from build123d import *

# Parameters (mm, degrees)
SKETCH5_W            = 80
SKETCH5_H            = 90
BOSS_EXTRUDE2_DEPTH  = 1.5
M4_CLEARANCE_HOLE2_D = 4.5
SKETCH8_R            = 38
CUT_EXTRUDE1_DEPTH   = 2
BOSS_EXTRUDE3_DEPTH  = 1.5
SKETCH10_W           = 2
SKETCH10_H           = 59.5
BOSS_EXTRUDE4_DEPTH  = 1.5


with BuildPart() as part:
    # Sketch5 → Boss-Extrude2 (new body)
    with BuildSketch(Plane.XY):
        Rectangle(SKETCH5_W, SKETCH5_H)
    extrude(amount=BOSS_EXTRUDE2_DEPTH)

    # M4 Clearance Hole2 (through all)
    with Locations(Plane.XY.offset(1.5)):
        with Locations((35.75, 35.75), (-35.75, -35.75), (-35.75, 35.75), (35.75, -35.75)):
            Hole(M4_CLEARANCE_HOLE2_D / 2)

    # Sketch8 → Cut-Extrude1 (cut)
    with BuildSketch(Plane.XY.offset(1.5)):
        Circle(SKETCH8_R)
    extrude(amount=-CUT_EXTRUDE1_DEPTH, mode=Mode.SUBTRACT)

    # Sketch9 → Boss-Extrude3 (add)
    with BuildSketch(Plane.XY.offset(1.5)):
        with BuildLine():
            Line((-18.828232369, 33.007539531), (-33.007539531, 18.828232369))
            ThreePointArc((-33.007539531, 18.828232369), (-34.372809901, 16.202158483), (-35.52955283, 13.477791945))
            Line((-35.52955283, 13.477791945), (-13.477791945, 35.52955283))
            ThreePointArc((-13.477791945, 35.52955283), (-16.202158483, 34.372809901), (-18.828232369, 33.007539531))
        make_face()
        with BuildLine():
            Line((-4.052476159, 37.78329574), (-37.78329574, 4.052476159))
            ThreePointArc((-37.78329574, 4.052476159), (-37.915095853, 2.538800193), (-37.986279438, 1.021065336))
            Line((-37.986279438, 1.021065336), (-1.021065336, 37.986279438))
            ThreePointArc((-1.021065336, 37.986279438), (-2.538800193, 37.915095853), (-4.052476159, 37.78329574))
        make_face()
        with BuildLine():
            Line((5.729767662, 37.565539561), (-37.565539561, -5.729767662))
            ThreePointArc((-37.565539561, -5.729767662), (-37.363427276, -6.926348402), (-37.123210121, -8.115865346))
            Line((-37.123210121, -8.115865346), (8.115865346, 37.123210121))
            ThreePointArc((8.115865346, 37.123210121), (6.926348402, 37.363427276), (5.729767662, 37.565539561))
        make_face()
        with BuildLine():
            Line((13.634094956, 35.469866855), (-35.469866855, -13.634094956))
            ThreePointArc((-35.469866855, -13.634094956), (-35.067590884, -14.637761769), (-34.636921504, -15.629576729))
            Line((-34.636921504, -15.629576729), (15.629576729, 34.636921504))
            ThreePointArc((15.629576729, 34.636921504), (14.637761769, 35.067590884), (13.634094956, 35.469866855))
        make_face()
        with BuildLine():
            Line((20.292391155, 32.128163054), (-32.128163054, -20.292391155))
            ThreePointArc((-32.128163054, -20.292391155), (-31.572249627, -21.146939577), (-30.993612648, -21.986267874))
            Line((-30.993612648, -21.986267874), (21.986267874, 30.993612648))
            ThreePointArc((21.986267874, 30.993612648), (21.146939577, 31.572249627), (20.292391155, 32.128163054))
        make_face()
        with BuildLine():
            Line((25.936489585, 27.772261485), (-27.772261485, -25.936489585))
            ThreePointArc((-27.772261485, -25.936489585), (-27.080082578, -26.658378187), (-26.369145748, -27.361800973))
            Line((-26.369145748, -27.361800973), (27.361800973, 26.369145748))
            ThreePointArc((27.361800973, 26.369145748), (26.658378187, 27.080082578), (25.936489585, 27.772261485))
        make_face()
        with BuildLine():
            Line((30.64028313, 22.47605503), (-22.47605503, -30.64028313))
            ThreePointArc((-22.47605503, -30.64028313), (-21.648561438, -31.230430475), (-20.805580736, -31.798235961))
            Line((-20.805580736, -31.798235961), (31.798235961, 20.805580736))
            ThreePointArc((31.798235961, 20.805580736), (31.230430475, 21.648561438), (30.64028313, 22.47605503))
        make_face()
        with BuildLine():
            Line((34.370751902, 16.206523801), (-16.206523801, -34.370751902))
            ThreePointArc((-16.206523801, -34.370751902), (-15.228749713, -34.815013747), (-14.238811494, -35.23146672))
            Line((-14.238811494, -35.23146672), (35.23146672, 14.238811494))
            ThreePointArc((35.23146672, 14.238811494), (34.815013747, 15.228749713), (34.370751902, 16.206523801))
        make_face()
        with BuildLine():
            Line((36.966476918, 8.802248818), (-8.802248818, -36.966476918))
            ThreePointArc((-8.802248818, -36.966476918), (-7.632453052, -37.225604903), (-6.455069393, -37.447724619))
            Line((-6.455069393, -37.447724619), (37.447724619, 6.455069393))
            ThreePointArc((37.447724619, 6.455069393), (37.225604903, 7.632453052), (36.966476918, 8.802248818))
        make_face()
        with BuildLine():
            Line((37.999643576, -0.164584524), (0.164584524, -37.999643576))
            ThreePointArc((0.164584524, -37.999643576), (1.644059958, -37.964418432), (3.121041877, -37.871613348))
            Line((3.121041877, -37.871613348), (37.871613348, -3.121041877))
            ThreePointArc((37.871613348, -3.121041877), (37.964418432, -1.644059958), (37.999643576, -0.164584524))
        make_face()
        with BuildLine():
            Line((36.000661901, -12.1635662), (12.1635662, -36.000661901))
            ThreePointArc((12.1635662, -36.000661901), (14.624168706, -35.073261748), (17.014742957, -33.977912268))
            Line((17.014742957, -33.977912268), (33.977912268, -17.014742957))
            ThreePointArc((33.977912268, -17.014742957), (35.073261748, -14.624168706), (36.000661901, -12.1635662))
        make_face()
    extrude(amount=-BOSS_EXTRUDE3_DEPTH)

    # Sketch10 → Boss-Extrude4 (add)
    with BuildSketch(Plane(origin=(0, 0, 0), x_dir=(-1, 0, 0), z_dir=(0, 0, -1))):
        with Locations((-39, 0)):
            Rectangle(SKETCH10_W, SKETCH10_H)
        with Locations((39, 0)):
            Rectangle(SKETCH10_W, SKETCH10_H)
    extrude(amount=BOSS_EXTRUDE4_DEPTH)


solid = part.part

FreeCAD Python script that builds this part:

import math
import FreeCAD as App
import Part
import Sketcher
from FreeCAD import Vector
Q = App.Units.Quantity


def add_polygon(sketch, points):
    """Adds a closed chain of lines whose ends are joined by coincident constraints."""
    first, n = sketch.GeometryCount, len(points)
    for a, b in zip(points, points[1:] + points[:1]):
        sketch.addGeometry(Part.LineSegment(App.Vector(*a, 0), App.Vector(*b, 0)), False)
    for i in range(n):
        sketch.addConstraint(Sketcher.Constraint("Coincident", first + i, 2, first + (i + 1) % n, 1))

doc = App.newDocument("Part")
params = doc.addObject("Spreadsheet::Sheet", "Params")
for row, (alias, value) in enumerate([
    ("sketch1_width", "80 mm"),
    ("sketch1_height", "90 mm"),
    ("pad1_length", "1.5 mm"),
    ("sketch2_diameter", "4.5 mm"),
    ("hole_diameter", "4.5 mm"),
    ("sketch3_diameter", "76 mm"),
    ("pocket1_length", "2 mm"),
    ("sketch4_radius", "38 mm"),
    ("pad2_length", "1.5 mm"),
    ("sketch5_width", "2 mm"),
    ("sketch5_height", "59.5 mm"),
    ("pad3_length", "1.5 mm"),
], start=1):
    params.set(f"A{row}", alias)
    params.set(f"B{row}", "=" + value)
    params.setAlias(f"B{row}", alias)

body = doc.addObject("PartDesign::Body", "Body")

# Sketch on XY plane
sketch1 = body.newObject("Sketcher::SketchObject", "Sketch")
sketch1.AttachmentSupport = (doc.getObject("XY_Plane"), [""])
sketch1.MapMode = "FlatFace"
add_polygon(sketch1, [(-40, 45), (-40, -45), (40, -45), (40, 45)])  # lines 0-3
sketch1.addConstraint([
    Sketcher.Constraint("Vertical", 0),
    Sketcher.Constraint("Horizontal", 1),
    Sketcher.Constraint("Vertical", 2),
    Sketcher.Constraint("Horizontal", 3),
    Sketcher.Constraint("Symmetric", 0, 2, 2, 2, -1, 1),
    Sketcher.Constraint("DistanceX", 1, 1, 1, 2, 80.0),
    Sketcher.Constraint("DistanceY", 0, 2, 0, 1, 90.0),
])
sketch1.setExpression("Constraints[9]", "Params.sketch1_width")
sketch1.setExpression("Constraints[10]", "Params.sketch1_height")
pad1 = body.newObject("PartDesign::Pad", "Pad")
pad1.Profile = sketch1
pad1.setExpression("Length", "Params.pad1_length")

# Sketch on XY plane
sketch2 = body.newObject("Sketcher::SketchObject", "Sketch001")
sketch2.AttachmentSupport = (doc.getObject("XY_Plane"), [""])
sketch2.MapMode = "FlatFace"
sketch2.AttachmentOffset = App.Placement(Vector(0, 0, 1.5), App.Rotation())
sketch2.addGeometry([
    Part.Circle(Vector(35.8, 35.8, 0), Vector(0, 0, 1), 2.2),
    Part.Circle(Vector(-35.8, -35.8, 0), Vector(0, 0, 1), 2.2),
    Part.Circle(Vector(-35.8, 35.8, 0), Vector(0, 0, 1), 2.2),
    Part.Circle(Vector(35.8, -35.8, 0), Vector(0, 0, 1), 2.2),
], False)
sketch2.addConstraint([
    Sketcher.Constraint("Equal", 0, 1),
    Sketcher.Constraint("Equal", 1, 2),
    Sketcher.Constraint("Equal", 2, 3),
    Sketcher.Constraint("Symmetric", 0, 3, 1, 3, -1, 1),
    Sketcher.Constraint("Symmetric", 2, 3, 3, 3, -1, 1),
    Sketcher.Constraint("Symmetric", 0, 3, 2, 3, -2),
    Sketcher.Constraint("Diameter", 0, 4.5),
    Sketcher.Constraint("DistanceX", 1, 3, 0, 3, 71.5),
    Sketcher.Constraint("DistanceY", 1, 3, 0, 3, 71.5),
])
sketch2.setExpression("Constraints[6]", "Params.sketch2_diameter")
doc.recompute()
hole = body.newObject("PartDesign::Hole", "Hole")
hole.Profile = sketch2
hole.ThreadType = "None"
hole.setExpression("Diameter", "Params.hole_diameter")
hole.DepthType = "ThroughAll"

# Sketch on XY plane
sketch3 = body.newObject("Sketcher::SketchObject", "Sketch002")
sketch3.AttachmentSupport = (doc.getObject("XY_Plane"), [""])
sketch3.MapMode = "FlatFace"
sketch3.AttachmentOffset = App.Placement(Vector(0, 0, 1.5), App.Rotation())
sketch3.addGeometry(Part.Circle(Vector(0, 0, 0), Vector(0, 0, 1), 38), False)
sketch3.addConstraint([
    Sketcher.Constraint("Coincident", 0, 3, -1, 1),
    Sketcher.Constraint("Diameter", 0, 76.0),
])
sketch3.setExpression("Constraints[1]", "Params.sketch3_diameter")
pocket1 = body.newObject("PartDesign::Pocket", "Pocket")
pocket1.Profile = sketch3
pocket1.setExpression("Length", "Params.pocket1_length")

# Sketch on XY plane
sketch4 = body.newObject("Sketcher::SketchObject", "Sketch003")
sketch4.AttachmentSupport = (doc.getObject("XY_Plane"), [""])
sketch4.MapMode = "FlatFace"
sketch4.AttachmentOffset = App.Placement(Vector(0, 0, 1.5), App.Rotation())
sketch4.addGeometry([
    Part.LineSegment(Vector(-18.8, 33, 0), Vector(-33, 18.8, 0)),  # 0
    Part.ArcOfCircle(Part.Circle(Vector(0, 0, 0), Vector(0, 0, 1), 38), math.radians(150.3), math.radians(159.23)),  # 1
    Part.LineSegment(Vector(-35.5, 13.5, 0), Vector(-13.5, 35.5, 0)),  # 2
    Part.ArcOfCircle(Part.Circle(Vector(0, 0, 0), Vector(0, 0, 1), 38), math.radians(110.77), math.radians(119.7)),  # 3
    Part.LineSegment(Vector(-4.1, 37.8, 0), Vector(-37.8, 4.1, 0)),  # 4
    Part.ArcOfCircle(Part.Circle(Vector(0, 0, 0), Vector(0, 0, 1), 38), math.radians(173.88), math.radians(178.46)),  # 5
    Part.LineSegment(Vector(-38, 1, 0), Vector(-1, 38, 0)),  # 6
    Part.ArcOfCircle(Part.Circle(Vector(0, 0, 0), Vector(0, 0, 1), 38), math.radians(91.54), math.radians(96.12)),  # 7
    Part.LineSegment(Vector(5.7, 37.6, 0), Vector(-37.6, -5.7, 0)),  # 8
    Part.ArcOfCircle(Part.Circle(Vector(0, 0, 0), Vector(0, 0, 1), 38), math.radians(-171.33), math.radians(-167.67)),  # 9
    Part.LineSegment(Vector(-37.1, -8.1, 0), Vector(8.1, 37.1, 0)),  # 10
    Part.ArcOfCircle(Part.Circle(Vector(0, 0, 0), Vector(0, 0, 1), 38), math.radians(77.67), math.radians(81.33)),  # 11
    Part.LineSegment(Vector(13.6, 35.5, 0), Vector(-35.5, -13.6, 0)),  # 12
    Part.ArcOfCircle(Part.Circle(Vector(0, 0, 0), Vector(0, 0, 1), 38), math.radians(-158.97), math.radians(-155.71)),  # 13
    Part.LineSegment(Vector(-34.6, -15.6, 0), Vector(15.6, 34.6, 0)),  # 14
    Part.ArcOfCircle(Part.Circle(Vector(0, 0, 0), Vector(0, 0, 1), 38), math.radians(65.71), math.radians(68.97)),  # 15
    Part.LineSegment(Vector(20.3, 32.1, 0), Vector(-32.1, -20.3, 0)),  # 16
    Part.ArcOfCircle(Part.Circle(Vector(0, 0, 0), Vector(0, 0, 1), 38), math.radians(-147.72), math.radians(-144.65)),  # 17
    Part.LineSegment(Vector(-31, -22, 0), Vector(22, 31, 0)),  # 18
    Part.ArcOfCircle(Part.Circle(Vector(0, 0, 0), Vector(0, 0, 1), 38), math.radians(54.65), math.radians(57.72)),  # 19
    Part.LineSegment(Vector(25.9, 27.8, 0), Vector(-27.8, -25.9, 0)),  # 20
    Part.ArcOfCircle(Part.Circle(Vector(0, 0, 0), Vector(0, 0, 1), 38), math.radians(-136.96), math.radians(-133.94)),  # 21
    Part.LineSegment(Vector(-26.4, -27.4, 0), Vector(27.4, 26.4, 0)),  # 22
    Part.ArcOfCircle(Part.Circle(Vector(0, 0, 0), Vector(0, 0, 1), 38), math.radians(43.94), math.radians(46.96)),  # 23
    Part.LineSegment(Vector(30.6, 22.5, 0), Vector(-22.5, -30.6, 0)),  # 24
    Part.ArcOfCircle(Part.Circle(Vector(0, 0, 0), Vector(0, 0, 1), 38), math.radians(-126.26), math.radians(-123.2)),  # 25
    Part.LineSegment(Vector(-20.8, -31.8, 0), Vector(31.8, 20.8, 0)),  # 26
    Part.ArcOfCircle(Part.Circle(Vector(0, 0, 0), Vector(0, 0, 1), 38), math.radians(33.2), math.radians(36.26)),  # 27
    Part.LineSegment(Vector(34.4, 16.2, 0), Vector(-16.2, -34.4, 0)),  # 28
    Part.ArcOfCircle(Part.Circle(Vector(0, 0, 0), Vector(0, 0, 1), 38), math.radians(-115.24), math.radians(-112.01)),  # 29
    Part.LineSegment(Vector(-14.2, -35.2, 0), Vector(35.2, 14.2, 0)),  # 30
    Part.ArcOfCircle(Part.Circle(Vector(0, 0, 0), Vector(0, 0, 1), 38), math.radians(22.01), math.radians(25.24)),  # 31
    Part.LineSegment(Vector(37, 8.8, 0), Vector(-8.8, -37, 0)),  # 32
    Part.ArcOfCircle(Part.Circle(Vector(0, 0, 0), Vector(0, 0, 1), 38), math.radians(-103.39), math.radians(-99.78)),  # 33
    Part.LineSegment(Vector(-6.5, -37.4, 0), Vector(37.4, 6.5, 0)),  # 34
    Part.ArcOfCircle(Part.Circle(Vector(0, 0, 0), Vector(0, 0, 1), 38), math.radians(9.78), math.radians(13.39)),  # 35
    Part.LineSegment(Vector(38, -0.2, 0), Vector(0.2, -38, 0)),  # 36
    Part.ArcOfCircle(Part.Circle(Vector(0, 0, 0), Vector(0, 0, 1), 38), math.radians(-89.75), math.radians(-85.29)),  # 37
    Part.LineSegment(Vector(3.1, -37.9, 0), Vector(37.9, -3.1, 0)),  # 38
    Part.ArcOfCircle(Part.Circle(Vector(0, 0, 0), Vector(0, 0, 1), 38), math.radians(-4.71), math.radians(-0.25)),  # 39
    Part.LineSegment(Vector(36, -12.2, 0), Vector(12.2, -36, 0)),  # 40
    Part.ArcOfCircle(Part.Circle(Vector(0, 0, 0), Vector(0, 0, 1), 38), math.radians(-71.33), math.radians(-63.4)),  # 41
    Part.LineSegment(Vector(17, -34, 0), Vector(34, -17, 0)),  # 42
    Part.ArcOfCircle(Part.Circle(Vector(0, 0, 0), Vector(0, 0, 1), 38), math.radians(-26.6), math.radians(-18.67)),  # 43
], False)
sketch4.addConstraint([
    Sketcher.Constraint("Coincident", 0, 2, 1, 1),
    Sketcher.Constraint("Coincident", 1, 2, 2, 1),
    Sketcher.Constraint("Coincident", 2, 2, 3, 1),
    Sketcher.Constraint("Coincident", 3, 2, 0, 1),
    Sketcher.Constraint("Coincident", 4, 2, 5, 1),
    Sketcher.Constraint("Coincident", 5, 2, 6, 1),
    Sketcher.Constraint("Coincident", 6, 2, 7, 1),
    Sketcher.Constraint("Coincident", 7, 2, 4, 1),
    Sketcher.Constraint("Coincident", 8, 2, 9, 1),
    Sketcher.Constraint("Coincident", 9, 2, 10, 1),
    Sketcher.Constraint("Coincident", 10, 2, 11, 1),
    Sketcher.Constraint("Coincident", 11, 2, 8, 1),
    Sketcher.Constraint("Coincident", 12, 2, 13, 1),
    Sketcher.Constraint("Coincident", 13, 2, 14, 1),
    Sketcher.Constraint("Coincident", 14, 2, 15, 1),
    Sketcher.Constraint("Coincident", 15, 2, 12, 1),
    Sketcher.Constraint("Coincident", 16, 2, 17, 1),
    Sketcher.Constraint("Coincident", 17, 2, 18, 1),
    Sketcher.Constraint("Coincident", 18, 2, 19, 1),
    Sketcher.Constraint("Coincident", 19, 2, 16, 1),
    Sketcher.Constraint("Coincident", 20, 2, 21, 1),
    Sketcher.Constraint("Coincident", 21, 2, 22, 1),
    Sketcher.Constraint("Coincident", 22, 2, 23, 1),
    Sketcher.Constraint("Coincident", 23, 2, 20, 1),
    Sketcher.Constraint("Coincident", 24, 2, 25, 1),
    Sketcher.Constraint("Coincident", 25, 2, 26, 1),
    Sketcher.Constraint("Coincident", 26, 2, 27, 1),
    Sketcher.Constraint("Coincident", 27, 2, 24, 1),
    Sketcher.Constraint("Coincident", 28, 2, 29, 1),
    Sketcher.Constraint("Coincident", 29, 2, 30, 1),
    Sketcher.Constraint("Coincident", 30, 2, 31, 1),
    Sketcher.Constraint("Coincident", 31, 2, 28, 1),
    Sketcher.Constraint("Coincident", 32, 2, 33, 1),
    Sketcher.Constraint("Coincident", 33, 2, 34, 1),
    Sketcher.Constraint("Coincident", 34, 2, 35, 1),
    Sketcher.Constraint("Coincident", 35, 2, 32, 1),
    Sketcher.Constraint("Coincident", 36, 2, 37, 1),
    Sketcher.Constraint("Coincident", 37, 2, 38, 1),
    Sketcher.Constraint("Coincident", 38, 2, 39, 1),
    Sketcher.Constraint("Coincident", 39, 2, 36, 1),
    Sketcher.Constraint("Coincident", 40, 2, 41, 1),
    Sketcher.Constraint("Coincident", 41, 2, 42, 1),
    Sketcher.Constraint("Coincident", 42, 2, 43, 1),
    Sketcher.Constraint("Coincident", 43, 2, 40, 1),
    Sketcher.Constraint("Coincident", 1, 3, -1, 1),
    Sketcher.Constraint("Coincident", 3, 3, -1, 1),
    Sketcher.Constraint("Coincident", 5, 3, -1, 1),
    Sketcher.Constraint("Coincident", 7, 3, -1, 1),
    Sketcher.Constraint("Coincident", 9, 3, -1, 1),
    Sketcher.Constraint("Coincident", 11, 3, -1, 1),
    Sketcher.Constraint("Coincident", 13, 3, -1, 1),
    Sketcher.Constraint("Coincident", 15, 3, -1, 1),
    Sketcher.Constraint("Coincident", 17, 3, -1, 1),
    Sketcher.Constraint("Coincident", 19, 3, -1, 1),
    Sketcher.Constraint("Coincident", 21, 3, -1, 1),
    Sketcher.Constraint("Coincident", 23, 3, -1, 1),
    Sketcher.Constraint("Coincident", 25, 3, -1, 1),
    Sketcher.Constraint("Coincident", 27, 3, -1, 1),
    Sketcher.Constraint("Coincident", 29, 3, -1, 1),
    Sketcher.Constraint("Coincident", 31, 3, -1, 1),
    Sketcher.Constraint("Coincident", 33, 3, -1, 1),
    Sketcher.Constraint("Coincident", 35, 3, -1, 1),
    Sketcher.Constraint("Coincident", 37, 3, -1, 1),
    Sketcher.Constraint("Coincident", 39, 3, -1, 1),
    Sketcher.Constraint("Coincident", 41, 3, -1, 1),
    Sketcher.Constraint("Coincident", 43, 3, -1, 1),
    Sketcher.Constraint("Equal", 1, 3),
    Sketcher.Constraint("Equal", 3, 5),
    Sketcher.Constraint("Equal", 5, 7),
    Sketcher.Constraint("Equal", 7, 9),
    Sketcher.Constraint("Equal", 9, 11),
    Sketcher.Constraint("Equal", 11, 13),
    Sketcher.Constraint("Equal", 13, 15),
    Sketcher.Constraint("Equal", 15, 17),
    Sketcher.Constraint("Equal", 17, 19),
    Sketcher.Constraint("Equal", 19, 21),
    Sketcher.Constraint("Equal", 21, 23),
    Sketcher.Constraint("Equal", 23, 25),
    Sketcher.Constraint("Equal", 25, 27),
    Sketcher.Constraint("Equal", 27, 29),
    Sketcher.Constraint("Equal", 29, 31),
    Sketcher.Constraint("Equal", 31, 33),
    Sketcher.Constraint("Equal", 33, 35),
    Sketcher.Constraint("Equal", 35, 37),
    Sketcher.Constraint("Equal", 37, 39),
    Sketcher.Constraint("Equal", 39, 41),
    Sketcher.Constraint("Equal", 41, 43),
    Sketcher.Constraint("Parallel", 0, 2),
    Sketcher.Constraint("Parallel", 2, 4),
    Sketcher.Constraint("Parallel", 4, 6),
    Sketcher.Constraint("Parallel", 6, 8),
    Sketcher.Constraint("Parallel", 8, 10),
    Sketcher.Constraint("Parallel", 10, 12),
    Sketcher.Constraint("Parallel", 12, 14),
    Sketcher.Constraint("Parallel", 14, 16),
    Sketcher.Constraint("Parallel", 16, 18),
    Sketcher.Constraint("Parallel", 18, 20),
    Sketcher.Constraint("Parallel", 20, 22),
    Sketcher.Constraint("Parallel", 22, 24),
    Sketcher.Constraint("Parallel", 24, 26),
    Sketcher.Constraint("Parallel", 26, 28),
    Sketcher.Constraint("Parallel", 28, 30),
    Sketcher.Constraint("Parallel", 30, 32),
    Sketcher.Constraint("Parallel", 32, 34),
    Sketcher.Constraint("Parallel", 34, 36),
    Sketcher.Constraint("Parallel", 36, 38),
    Sketcher.Constraint("Parallel", 38, 40),
    Sketcher.Constraint("Parallel", 40, 42),
    Sketcher.Constraint("Radius", 1, 38.0),
    Sketcher.Constraint("Angle", 0, Q("-135 deg")),
    Sketcher.Constraint("Distance", 2, 31.185899),
    Sketcher.Constraint("DistanceY", 21, 2, -1, 1, 27.361801),
    Sketcher.Constraint("Distance", 0, 20.052568),
    Sketcher.Constraint("Distance", 8, 61.228811),
    Sketcher.Constraint("Distance", 12, 69.443489),
    Sketcher.Constraint("Distance", 16, 74.133859),
    Sketcher.Constraint("Distance", 26, 74.393031),
    Sketcher.Constraint("Distance", 28, 71.527069),
    Sketcher.Constraint("Distance", 30, 69.961538),
    Sketcher.Constraint("Distance", 38, 49.144729),
    Sketcher.Constraint("DistanceX", 5, 2, -1, 1, 37.986279),
    Sketcher.Constraint("DistanceX", 9, 2, -1, 1, 37.12321),
    Sketcher.Constraint("DistanceX", 13, 2, -1, 1, 34.636922),
    Sketcher.Constraint("DistanceX", 20, 2, -1, 1, 27.772261),
    Sketcher.Constraint("DistanceX", 32, 2, -1, 1, 8.802249),
    Sketcher.Constraint("DistanceX", 33, 2, -1, 1, 6.455069),
    Sketcher.Constraint("DistanceY", 40, 2, -1, 1, 36.000662),
    Sketcher.Constraint("Distance", 4, 47.702583),
    Sketcher.Constraint("Distance", 18, 74.924866),
    Sketcher.Constraint("Distance", 24, 75.117846),
    Sketcher.Constraint("Distance", 36, 53.506854),
    Sketcher.Constraint("Distance", 42, 23.989544),
])
sketch4.setExpression("Constraints[108]", "Params.sketch4_radius")
pad2 = body.newObject("PartDesign::Pad", "Pad001")
pad2.Profile = sketch4
pad2.setExpression("Length", "Params.pad2_length")
pad2.Reversed = True

# Sketch on XY plane
sketch5 = body.newObject("Sketcher::SketchObject", "Sketch004")
sketch5.AttachmentSupport = (doc.getObject("XY_Plane"), [""])
sketch5.MapMode = "FlatFace"
add_polygon(sketch5, [(40, 29.8), (40, -29.8), (38, -29.8), (38, 29.8)])  # lines 0-3
add_polygon(sketch5, [(-38, 29.8), (-38, -29.8), (-40, -29.8), (-40, 29.8)])  # lines 4-7
sketch5.addConstraint([
    Sketcher.Constraint("Vertical", 0),
    Sketcher.Constraint("Horizontal", 1),
    Sketcher.Constraint("Vertical", 2),
    Sketcher.Constraint("Horizontal", 3),
    Sketcher.Constraint("Vertical", 4),
    Sketcher.Constraint("Horizontal", 5),
    Sketcher.Constraint("Vertical", 6),
    Sketcher.Constraint("Horizontal", 7),
    Sketcher.Constraint("Symmetric", 2, 2, 4, 2, -1, 1),
    Sketcher.Constraint("Symmetric", 0, 2, 6, 2, -1, 1),
    Sketcher.Constraint("Horizontal", 1, 2, 4, 2),
    Sketcher.Constraint("DistanceX", 1, 2, 1, 1, 2.0),
    Sketcher.Constraint("DistanceY", 0, 2, 0, 1, 59.5),
    Sketcher.Constraint("DistanceX", -1, 1, 0, 2, 40.0),
])
sketch5.setExpression("Constraints[19]", "Params.sketch5_width")
sketch5.setExpression("Constraints[20]", "Params.sketch5_height")
pad3 = body.newObject("PartDesign::Pad", "Pad002")
pad3.Profile = sketch5
pad3.setExpression("Length", "Params.pad3_length")
pad3.Reversed = True

doc.recompute()
